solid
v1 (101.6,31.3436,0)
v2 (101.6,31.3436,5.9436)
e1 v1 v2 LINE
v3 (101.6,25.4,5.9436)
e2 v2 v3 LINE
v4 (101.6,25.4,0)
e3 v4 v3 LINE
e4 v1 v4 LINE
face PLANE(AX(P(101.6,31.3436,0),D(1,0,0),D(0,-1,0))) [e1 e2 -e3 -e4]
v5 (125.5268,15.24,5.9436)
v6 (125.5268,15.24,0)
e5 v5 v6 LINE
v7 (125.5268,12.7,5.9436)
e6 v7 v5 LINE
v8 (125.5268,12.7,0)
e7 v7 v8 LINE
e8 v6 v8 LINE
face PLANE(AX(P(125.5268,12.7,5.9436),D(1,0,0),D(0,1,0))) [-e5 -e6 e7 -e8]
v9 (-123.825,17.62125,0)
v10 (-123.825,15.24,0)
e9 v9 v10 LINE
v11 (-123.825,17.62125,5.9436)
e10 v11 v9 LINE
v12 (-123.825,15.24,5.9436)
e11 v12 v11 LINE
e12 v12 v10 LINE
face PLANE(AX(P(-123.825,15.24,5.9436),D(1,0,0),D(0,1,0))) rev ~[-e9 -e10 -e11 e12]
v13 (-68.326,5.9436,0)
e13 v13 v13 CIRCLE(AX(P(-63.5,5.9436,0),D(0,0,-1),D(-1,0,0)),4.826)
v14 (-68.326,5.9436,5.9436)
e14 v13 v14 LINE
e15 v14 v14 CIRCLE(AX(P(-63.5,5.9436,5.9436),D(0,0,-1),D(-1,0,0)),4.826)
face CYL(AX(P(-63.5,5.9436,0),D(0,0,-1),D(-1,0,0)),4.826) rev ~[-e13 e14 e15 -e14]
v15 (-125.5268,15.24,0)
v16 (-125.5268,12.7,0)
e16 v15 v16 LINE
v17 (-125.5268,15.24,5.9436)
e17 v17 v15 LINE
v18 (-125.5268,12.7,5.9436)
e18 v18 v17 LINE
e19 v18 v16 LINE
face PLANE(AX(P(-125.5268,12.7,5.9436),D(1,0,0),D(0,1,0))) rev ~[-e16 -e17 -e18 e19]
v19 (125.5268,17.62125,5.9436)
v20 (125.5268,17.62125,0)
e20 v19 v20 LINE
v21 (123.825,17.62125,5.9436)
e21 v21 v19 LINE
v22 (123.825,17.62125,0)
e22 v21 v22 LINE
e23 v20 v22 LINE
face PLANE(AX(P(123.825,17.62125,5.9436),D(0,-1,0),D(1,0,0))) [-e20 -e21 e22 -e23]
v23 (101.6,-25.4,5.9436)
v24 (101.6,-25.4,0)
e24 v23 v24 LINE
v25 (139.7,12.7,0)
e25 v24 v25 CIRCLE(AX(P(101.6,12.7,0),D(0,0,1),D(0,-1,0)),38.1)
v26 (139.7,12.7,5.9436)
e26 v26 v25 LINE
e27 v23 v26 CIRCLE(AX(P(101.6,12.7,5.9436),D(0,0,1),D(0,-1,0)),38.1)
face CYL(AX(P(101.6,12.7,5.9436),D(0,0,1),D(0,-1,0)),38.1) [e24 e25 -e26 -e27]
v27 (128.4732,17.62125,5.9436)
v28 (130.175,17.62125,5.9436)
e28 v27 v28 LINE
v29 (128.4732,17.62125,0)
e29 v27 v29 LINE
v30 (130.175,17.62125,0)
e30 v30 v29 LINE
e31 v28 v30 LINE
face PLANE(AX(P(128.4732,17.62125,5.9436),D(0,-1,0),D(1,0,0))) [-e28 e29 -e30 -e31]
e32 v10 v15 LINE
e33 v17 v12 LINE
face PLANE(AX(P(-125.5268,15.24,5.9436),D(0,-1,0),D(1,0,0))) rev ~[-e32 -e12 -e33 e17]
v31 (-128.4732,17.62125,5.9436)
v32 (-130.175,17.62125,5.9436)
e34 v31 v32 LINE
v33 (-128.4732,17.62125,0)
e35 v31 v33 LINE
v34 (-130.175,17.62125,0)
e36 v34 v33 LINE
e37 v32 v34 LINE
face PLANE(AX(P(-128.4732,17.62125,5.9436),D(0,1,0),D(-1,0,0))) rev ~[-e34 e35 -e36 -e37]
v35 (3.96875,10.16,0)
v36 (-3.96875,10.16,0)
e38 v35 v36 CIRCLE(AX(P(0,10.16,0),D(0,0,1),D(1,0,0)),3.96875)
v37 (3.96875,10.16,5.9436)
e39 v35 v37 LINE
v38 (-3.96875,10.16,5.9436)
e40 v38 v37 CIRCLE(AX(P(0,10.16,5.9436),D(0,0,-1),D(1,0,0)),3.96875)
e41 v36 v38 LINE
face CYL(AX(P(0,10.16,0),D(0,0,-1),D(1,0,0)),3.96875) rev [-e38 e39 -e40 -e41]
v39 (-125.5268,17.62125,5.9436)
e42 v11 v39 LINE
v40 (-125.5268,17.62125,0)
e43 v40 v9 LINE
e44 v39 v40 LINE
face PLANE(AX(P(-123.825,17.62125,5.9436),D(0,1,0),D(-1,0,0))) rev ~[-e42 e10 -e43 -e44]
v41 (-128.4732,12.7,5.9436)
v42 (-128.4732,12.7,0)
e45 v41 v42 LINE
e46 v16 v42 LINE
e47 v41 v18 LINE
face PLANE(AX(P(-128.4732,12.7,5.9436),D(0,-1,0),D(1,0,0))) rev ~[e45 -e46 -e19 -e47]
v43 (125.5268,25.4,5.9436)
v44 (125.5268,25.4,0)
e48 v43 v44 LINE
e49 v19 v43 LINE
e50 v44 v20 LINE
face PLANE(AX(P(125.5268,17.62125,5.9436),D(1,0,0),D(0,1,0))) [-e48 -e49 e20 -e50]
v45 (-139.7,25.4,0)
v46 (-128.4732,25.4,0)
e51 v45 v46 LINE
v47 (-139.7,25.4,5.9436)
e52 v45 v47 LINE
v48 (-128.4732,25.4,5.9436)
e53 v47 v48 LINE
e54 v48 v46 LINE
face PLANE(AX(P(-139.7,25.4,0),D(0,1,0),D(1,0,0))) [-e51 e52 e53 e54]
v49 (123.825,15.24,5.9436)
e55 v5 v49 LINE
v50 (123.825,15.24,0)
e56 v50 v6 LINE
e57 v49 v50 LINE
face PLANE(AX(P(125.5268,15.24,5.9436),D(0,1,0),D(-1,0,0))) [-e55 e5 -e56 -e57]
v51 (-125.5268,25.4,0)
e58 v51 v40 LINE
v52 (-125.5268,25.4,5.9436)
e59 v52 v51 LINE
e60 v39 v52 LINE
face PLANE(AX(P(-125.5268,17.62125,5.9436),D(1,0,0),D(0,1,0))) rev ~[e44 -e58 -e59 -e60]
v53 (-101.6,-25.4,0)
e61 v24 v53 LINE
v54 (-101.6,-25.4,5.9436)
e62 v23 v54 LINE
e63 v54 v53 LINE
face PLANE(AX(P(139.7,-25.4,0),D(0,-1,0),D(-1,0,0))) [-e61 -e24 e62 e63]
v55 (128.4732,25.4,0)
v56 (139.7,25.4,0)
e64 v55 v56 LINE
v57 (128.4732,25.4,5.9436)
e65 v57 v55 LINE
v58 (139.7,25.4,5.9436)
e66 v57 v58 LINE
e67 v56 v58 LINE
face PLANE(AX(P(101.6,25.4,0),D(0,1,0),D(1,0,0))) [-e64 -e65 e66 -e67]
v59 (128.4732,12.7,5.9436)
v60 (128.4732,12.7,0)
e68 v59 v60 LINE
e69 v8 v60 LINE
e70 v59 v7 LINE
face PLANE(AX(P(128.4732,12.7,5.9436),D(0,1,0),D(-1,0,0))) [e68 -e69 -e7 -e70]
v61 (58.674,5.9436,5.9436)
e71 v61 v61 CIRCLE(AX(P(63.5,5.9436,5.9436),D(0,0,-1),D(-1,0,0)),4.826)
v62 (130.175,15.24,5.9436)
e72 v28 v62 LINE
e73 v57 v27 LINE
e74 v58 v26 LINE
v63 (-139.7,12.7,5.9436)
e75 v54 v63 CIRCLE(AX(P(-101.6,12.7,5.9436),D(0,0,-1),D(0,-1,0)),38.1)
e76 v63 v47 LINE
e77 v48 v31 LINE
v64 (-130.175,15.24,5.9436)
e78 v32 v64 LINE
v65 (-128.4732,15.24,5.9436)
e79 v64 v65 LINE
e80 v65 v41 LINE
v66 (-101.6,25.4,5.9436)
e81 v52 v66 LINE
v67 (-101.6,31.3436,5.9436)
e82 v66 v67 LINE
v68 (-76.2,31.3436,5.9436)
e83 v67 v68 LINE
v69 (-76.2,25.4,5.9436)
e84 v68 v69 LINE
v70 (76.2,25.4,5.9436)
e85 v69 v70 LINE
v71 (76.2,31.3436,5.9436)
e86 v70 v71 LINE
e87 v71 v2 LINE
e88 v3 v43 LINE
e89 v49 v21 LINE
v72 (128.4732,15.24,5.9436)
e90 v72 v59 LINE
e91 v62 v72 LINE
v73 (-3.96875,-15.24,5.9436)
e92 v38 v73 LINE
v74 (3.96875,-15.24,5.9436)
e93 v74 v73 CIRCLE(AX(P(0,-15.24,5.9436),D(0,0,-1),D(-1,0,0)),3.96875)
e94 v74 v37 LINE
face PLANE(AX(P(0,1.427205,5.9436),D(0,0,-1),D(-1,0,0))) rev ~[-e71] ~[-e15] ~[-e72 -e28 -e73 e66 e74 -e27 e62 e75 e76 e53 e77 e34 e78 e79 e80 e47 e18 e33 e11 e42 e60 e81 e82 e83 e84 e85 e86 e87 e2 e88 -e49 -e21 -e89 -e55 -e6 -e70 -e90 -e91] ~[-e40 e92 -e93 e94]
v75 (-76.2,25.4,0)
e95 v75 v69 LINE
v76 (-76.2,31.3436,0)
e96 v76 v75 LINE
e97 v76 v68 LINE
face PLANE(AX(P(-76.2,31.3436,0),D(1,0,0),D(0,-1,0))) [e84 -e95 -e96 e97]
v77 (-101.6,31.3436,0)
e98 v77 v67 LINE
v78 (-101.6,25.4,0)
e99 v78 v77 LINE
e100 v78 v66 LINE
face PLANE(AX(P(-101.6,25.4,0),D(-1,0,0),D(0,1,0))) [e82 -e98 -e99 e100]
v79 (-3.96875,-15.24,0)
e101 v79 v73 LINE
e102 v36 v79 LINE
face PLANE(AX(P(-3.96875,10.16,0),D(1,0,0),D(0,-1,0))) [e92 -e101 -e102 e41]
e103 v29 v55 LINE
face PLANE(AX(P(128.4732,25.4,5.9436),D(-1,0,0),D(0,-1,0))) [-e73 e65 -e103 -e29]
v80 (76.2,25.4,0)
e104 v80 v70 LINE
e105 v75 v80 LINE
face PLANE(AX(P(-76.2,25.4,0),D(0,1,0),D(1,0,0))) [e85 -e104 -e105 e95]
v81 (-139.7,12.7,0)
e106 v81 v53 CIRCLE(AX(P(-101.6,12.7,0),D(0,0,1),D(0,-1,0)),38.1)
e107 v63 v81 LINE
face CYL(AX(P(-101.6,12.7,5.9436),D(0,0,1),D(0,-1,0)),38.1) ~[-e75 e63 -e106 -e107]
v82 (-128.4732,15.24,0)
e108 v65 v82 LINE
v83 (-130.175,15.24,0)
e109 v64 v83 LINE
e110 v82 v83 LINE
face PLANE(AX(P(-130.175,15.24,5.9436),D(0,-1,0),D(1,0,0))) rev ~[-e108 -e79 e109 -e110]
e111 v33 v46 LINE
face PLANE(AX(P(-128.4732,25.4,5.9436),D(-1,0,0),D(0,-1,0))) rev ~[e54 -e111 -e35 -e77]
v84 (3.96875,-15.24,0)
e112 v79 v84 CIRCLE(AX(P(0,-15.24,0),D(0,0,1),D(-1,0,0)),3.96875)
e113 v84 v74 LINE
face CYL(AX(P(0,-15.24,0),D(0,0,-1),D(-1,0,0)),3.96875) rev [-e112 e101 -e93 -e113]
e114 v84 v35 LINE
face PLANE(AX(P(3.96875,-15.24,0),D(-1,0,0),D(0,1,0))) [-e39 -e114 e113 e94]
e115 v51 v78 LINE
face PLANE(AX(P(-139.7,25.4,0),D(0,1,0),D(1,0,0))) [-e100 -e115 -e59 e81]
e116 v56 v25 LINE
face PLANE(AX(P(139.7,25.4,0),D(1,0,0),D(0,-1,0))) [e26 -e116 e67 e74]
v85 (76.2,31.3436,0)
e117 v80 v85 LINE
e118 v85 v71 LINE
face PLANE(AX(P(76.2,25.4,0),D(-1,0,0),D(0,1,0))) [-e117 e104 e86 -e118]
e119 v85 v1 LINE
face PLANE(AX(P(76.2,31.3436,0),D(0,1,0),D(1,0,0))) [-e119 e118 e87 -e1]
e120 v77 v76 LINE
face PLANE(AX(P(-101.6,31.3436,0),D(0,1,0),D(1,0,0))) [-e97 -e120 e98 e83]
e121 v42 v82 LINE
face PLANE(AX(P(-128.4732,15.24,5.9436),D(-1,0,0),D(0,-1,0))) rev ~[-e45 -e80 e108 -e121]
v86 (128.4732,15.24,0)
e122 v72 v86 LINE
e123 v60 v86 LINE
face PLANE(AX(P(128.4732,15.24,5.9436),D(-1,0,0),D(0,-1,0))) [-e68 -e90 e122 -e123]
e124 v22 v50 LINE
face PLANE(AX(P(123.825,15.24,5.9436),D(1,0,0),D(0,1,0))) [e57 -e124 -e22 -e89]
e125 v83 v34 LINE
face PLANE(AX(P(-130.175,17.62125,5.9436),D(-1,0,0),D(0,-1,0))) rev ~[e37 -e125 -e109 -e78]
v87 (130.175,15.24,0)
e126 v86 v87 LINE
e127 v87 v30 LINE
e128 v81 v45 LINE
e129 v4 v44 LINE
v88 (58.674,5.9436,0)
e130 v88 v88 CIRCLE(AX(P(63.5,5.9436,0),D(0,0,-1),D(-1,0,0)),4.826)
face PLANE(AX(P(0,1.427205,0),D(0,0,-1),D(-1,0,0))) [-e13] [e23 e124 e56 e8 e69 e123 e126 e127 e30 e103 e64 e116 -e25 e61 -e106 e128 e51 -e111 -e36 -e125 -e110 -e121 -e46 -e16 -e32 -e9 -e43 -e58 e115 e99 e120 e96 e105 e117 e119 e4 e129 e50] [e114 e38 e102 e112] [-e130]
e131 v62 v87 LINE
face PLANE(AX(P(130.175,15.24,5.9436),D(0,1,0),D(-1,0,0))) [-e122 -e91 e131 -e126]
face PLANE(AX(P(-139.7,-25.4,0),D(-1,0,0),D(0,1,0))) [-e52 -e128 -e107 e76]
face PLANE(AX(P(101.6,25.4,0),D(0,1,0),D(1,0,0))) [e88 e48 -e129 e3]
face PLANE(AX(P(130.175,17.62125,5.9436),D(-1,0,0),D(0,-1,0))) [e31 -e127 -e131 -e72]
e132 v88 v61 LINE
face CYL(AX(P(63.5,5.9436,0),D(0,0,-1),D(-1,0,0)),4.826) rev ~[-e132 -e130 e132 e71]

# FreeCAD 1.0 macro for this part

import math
import FreeCAD as App
import Part
import Sketcher
Q = App.Units.Quantity

doc = App.newDocument("Part")
body = doc.addObject("PartDesign::Body", "Body")

# Sketch on XY plane
sketch1 = body.newObject("Sketcher::SketchObject", "Sketch")
sketch1.AttachmentSupport = (doc.getObject("XY_Plane"), [""])
sketch1.MapMode = "FlatFace"
sketch1.addGeometry([
    Part.LineSegment(App.Vector(-101.6, 31.3436, 0), App.Vector(-101.6, 25.4, 0)),  # 0
    Part.LineSegment(App.Vector(-101.6, 25.4, 0), App.Vector(-139.7, 25.4, 0)),  # 1
    Part.LineSegment(App.Vector(-139.7, 25.4, 0), App.Vector(-139.7, -25.4, 0)),  # 2
    Part.LineSegment(App.Vector(-139.7, -25.4, 0), App.Vector(139.7, -25.4, 0)),  # 3
    Part.LineSegment(App.Vector(139.7, -25.4, 0), App.Vector(139.7, 25.4, 0)),  # 4
    Part.LineSegment(App.Vector(139.7, 25.4, 0), App.Vector(101.6, 25.4, 0)),  # 5
    Part.LineSegment(App.Vector(101.6, 25.4, 0), App.Vector(101.6, 31.3436, 0)),  # 6
    Part.LineSegment(App.Vector(101.6, 31.3436, 0), App.Vector(76.2, 31.3436, 0)),  # 7
    Part.LineSegment(App.Vector(76.2, 31.3436, 0), App.Vector(76.2, 25.4, 0)),  # 8
    Part.LineSegment(App.Vector(76.2, 25.4, 0), App.Vector(-76.2, 25.4, 0)),  # 9
    Part.LineSegment(App.Vector(-76.2, 25.4, 0), App.Vector(-76.2, 31.3436, 0)),  # 10
    Part.LineSegment(App.Vector(-76.2, 31.3436, 0), App.Vector(-101.6, 31.3436, 0)),  # 11
], False)
sketch1.addConstraint([
    Sketcher.Constraint("Coincident", 0, 2, 1, 1),
    Sketcher.Constraint("Coincident", 1, 2, 2, 1),
    Sketcher.Constraint("Coincident", 2, 2, 3, 1),
    Sketcher.Constraint("Coincident", 3, 2, 4, 1),
    Sketcher.Constraint("Coincident", 4, 2, 5, 1),
    Sketcher.Constraint("Coincident", 5, 2, 6, 1),
    Sketcher.Constraint("Coincident", 6, 2, 7, 1),
    Sketcher.Constraint("Coincident", 7, 2, 8, 1),
    Sketcher.Constraint("Coincident", 8, 2, 9, 1),
    Sketcher.Constraint("Coincident", 9, 2, 10, 1),
    Sketcher.Constraint("Coincident", 10, 2, 11, 1),
    Sketcher.Constraint("Coincident", 11, 2, 0, 1),
    Sketcher.Constraint("Vertical", 0),
    Sketcher.Constraint("Horizontal", 1),
    Sketcher.Constraint("Vertical", 2),
    Sketcher.Constraint("Horizontal", 3),
    Sketcher.Constraint("Vertical", 4),
    Sketcher.Constraint("Horizontal", 5),
    Sketcher.Constraint("Vertical", 6),
    Sketcher.Constraint("Horizontal", 7),
    Sketcher.Constraint("Vertical", 8),
    Sketcher.Constraint("Horizontal", 9),
    Sketcher.Constraint("Vertical", 10),
    Sketcher.Constraint("Horizontal", 11),
    Sketcher.Constraint("Symmetric", 1, 2, 3, 2, -1, 1),
    Sketcher.Constraint("Symmetric", 0, 2, 5, 2, -2),
    Sketcher.Constraint("Symmetric", 7, 2, 10, 2, -2),
    Sketcher.Constraint("Horizontal", 5, 2, 8, 2),
    Sketcher.Constraint("DistanceX", 3, 1, 3, 2, Q("11 in")),
    Sketcher.Constraint("DistanceX", 7, 2, 7, 1, Q("1 in")),
    Sketcher.Constraint("DistanceX", 9, 2, 9, 1, Q("6 in")),
    Sketcher.Constraint("DistanceY", 2, 2, 2, 1, Q("2 in")),
    Sketcher.Constraint("DistanceY", 0, 2, 0, 1, Q("0.234 in")),
])
pad1 = body.newObject("PartDesign::Pad", "Pad")
pad1.Profile = sketch1
pad1.Length = Q("0.234 in")

# Sketch on XY plane
sketch2 = body.newObject("Sketcher::SketchObject", "Sketch001")
sketch2.AttachmentSupport = (doc.getObject("XY_Plane"), [""])
sketch2.MapMode = "FlatFace"
sketch2.AttachmentOffset = App.Placement(App.Vector(0, 0, 0.234 * 25.4), App.Rotation())
sketch2.addGeometry([
    Part.LineSegment(App.Vector(-128.4732, 25.4, 0), App.Vector(-128.4732, 17.62125, 0)),  # 0
    Part.LineSegment(App.Vector(-128.4732, 17.62125, 0), App.Vector(-130.175, 17.62125, 0)),  # 1
    Part.LineSegment(App.Vector(-130.175, 17.62125, 0), App.Vector(-130.175, 15.24, 0)),  # 2
    Part.LineSegment(App.Vector(-130.175, 15.24, 0), App.Vector(-128.4732, 15.24, 0)),  # 3
    Part.LineSegment(App.Vector(-128.4732, 15.24, 0), App.Vector(-128.4732, 12.7, 0)),  # 4
    Part.LineSegment(App.Vector(-128.4732, 12.7, 0), App.Vector(-125.5268, 12.7, 0)),  # 5
    Part.LineSegment(App.Vector(-125.5268, 12.7, 0), App.Vector(-125.5268, 15.24, 0)),  # 6
    Part.LineSegment(App.Vector(-125.5268, 15.24, 0), App.Vector(-123.825, 15.24, 0)),  # 7
    Part.LineSegment(App.Vector(-123.825, 15.24, 0), App.Vector(-123.825, 17.62125, 0)),  # 8
    Part.LineSegment(App.Vector(-123.825, 17.62125, 0), App.Vector(-125.5268, 17.62125, 0)),  # 9
    Part.LineSegment(App.Vector(-125.5268, 17.62125, 0), App.Vector(-125.5268, 25.4, 0)),  # 10
    Part.LineSegment(App.Vector(-125.5268, 25.4, 0), App.Vector(-128.4732, 25.4, 0)),  # 11
    Part.LineSegment(App.Vector(125.5268, 25.4, 0), App.Vector(125.5268, 17.62125, 0)),  # 12
    Part.LineSegment(App.Vector(125.5268, 17.62125, 0), App.Vector(123.825, 17.62125, 0)),  # 13
    Part.LineSegment(App.Vector(123.825, 17.62125, 0), App.Vector(123.825, 15.24, 0)),  # 14
    Part.LineSegment(App.Vector(123.825, 15.24, 0), App.Vector(125.5268, 15.24, 0)),  # 15
    Part.LineSegment(App.Vector(125.5268, 15.24, 0), App.Vector(125.5268, 12.7, 0)),  # 16
    Part.LineSegment(App.Vector(125.5268, 12.7, 0), App.Vector(128.4732, 12.7, 0)),  # 17
    Part.LineSegment(App.Vector(128.4732, 12.7, 0), App.Vector(128.4732, 15.24, 0)),  # 18
    Part.LineSegment(App.Vector(128.4732, 15.24, 0), App.Vector(130.175, 15.24, 0)),  # 19
    Part.LineSegment(App.Vector(130.175, 15.24, 0), App.Vector(130.175, 17.62125, 0)),  # 20
    Part.LineSegment(App.Vector(130.175, 17.62125, 0), App.Vector(128.4732, 17.62125, 0)),  # 21
    Part.LineSegment(App.Vector(128.4732, 17.62125, 0), App.Vector(128.4732, 25.4, 0)),  # 22
    Part.LineSegment(App.Vector(128.4732, 25.4, 0), App.Vector(125.5268, 25.4, 0)),  # 23
], False)
sketch2.addConstraint([
    Sketcher.Constraint("Coincident", 0, 2, 1, 1),
    Sketcher.Constraint("Coincident", 1, 2, 2, 1),
    Sketcher.Constraint("Coincident", 2, 2, 3, 1),
    Sketcher.Constraint("Coincident", 3, 2, 4, 1),
    Sketcher.Constraint("Coincident", 4, 2, 5, 1),
    Sketcher.Constraint("Coincident", 5, 2, 6, 1),
    Sketcher.Constraint("Coincident", 6, 2, 7, 1),
    Sketcher.Constraint("Coincident", 7, 2, 8, 1),
    Sketcher.Constraint("Coincident", 8, 2, 9, 1),
    Sketcher.Constraint("Coincident", 9, 2, 10, 1),
    Sketcher.Constraint("Coincident", 10, 2, 11, 1),
    Sketcher.Constraint("Coincident", 11, 2, 0, 1),
    Sketcher.Constraint("Coincident", 12, 2, 13, 1),
    Sketcher.Constraint("Coincident", 13, 2, 14, 1),
    Sketcher.Constraint("Coincident", 14, 2, 15, 1),
    Sketcher.Constraint("Coincident", 15, 2, 16, 1),
    Sketcher.Constraint("Coincident", 16, 2, 17, 1),
    Sketcher.Constraint("Coincident", 17, 2, 18, 1),
    Sketcher.Constraint("Coincident", 18, 2, 19, 1),
    Sketcher.Constraint("Coincident", 19, 2, 20, 1),
    Sketcher.Constraint("Coincident", 20, 2, 21, 1),
    Sketcher.Constraint("Coincident", 21, 2, 22, 1),
    Sketcher.Constraint("Coincident", 22, 2, 23, 1),
    Sketcher.Constraint("Coincident", 23, 2, 12, 1),
    Sketcher.Constraint("Vertical", 0),
    Sketcher.Constraint("Horizontal", 1),
    Sketcher.Constraint("Vertical", 2),
    Sketcher.Constraint("Horizontal", 3),
    Sketcher.Constraint("Vertical", 4),
    Sketcher.Constraint("Horizontal", 5),
    Sketcher.Constraint("Vertical", 6),
    Sketcher.Constraint("Horizontal", 7),
    Sketcher.Constraint("Vertical", 8),
    Sketcher.Constraint("Horizontal", 9),
    Sketcher.Constraint("Vertical", 10),
    Sketcher.Constraint("Horizontal", 11),
    Sketcher.Constraint("Vertical", 12),
    Sketcher.Constraint("Horizontal", 13),
    Sketcher.Constraint("Vertical", 14),
    Sketcher.Constraint("Horizontal", 15),
    Sketcher.Constraint("Vertical", 16),
    Sketcher.Constraint("Horizontal", 17),
    Sketcher.Constraint("Vertical", 18),
    Sketcher.Constraint("Horizontal", 19),
    Sketcher.Constraint("Vertical", 20),
    Sketcher.Constraint("Horizontal", 21),
    Sketcher.Constraint("Vertical", 22),
    Sketcher.Constraint("Horizontal", 23),
    Sketcher.Constraint("Symmetric", 9, 2, 12, 2, -2),
    Sketcher.Constraint("Symmetric", 7, 2, 14, 2, -2),
    Sketcher.Constraint("Symmetric", 5, 2, 16, 2, -2),
    Sketcher.Constraint("Symmetric", 3, 2, 18, 2, -2),
    Sketcher.Constraint("Symmetric", 1, 2, 20, 2, -2),
    Sketcher.Constraint("Symmetric", 11, 2, 22, 2, -2),
    Sketcher.Constraint("Horizontal", 3, 2, 6, 2),
    Sketcher.Constraint("Horizontal", 1, 2, 8, 2),
    Sketcher.Constraint("Vertical", 0, 2, 3, 2),
    Sketcher.Constraint("Vertical", 6, 2, 9, 2),
    Sketcher.Constraint("Equal", 3, 7),
    Sketcher.Constraint("DistanceY", 4, 2, 4, 1, Q("0.1 in")),
    Sketcher.Constraint("DistanceY", -1, 1, 10, 2, Q("1 in")),
    Sketcher.Constraint("DistanceY", -1, 1, 2, 2, Q("0.6 in")),
    Sketcher.Constraint("DistanceX", 1, 2, 1, 1, Q("0.067 in")),
    Sketcher.Constraint("DistanceX", 5, 1, 5, 2, Q("0.116 in")),
    Sketcher.Constraint("DistanceY", 2, 2, 2, 1, Q("0.09375 in")),
    Sketcher.Constraint("DistanceX", 8, 2, 13, 2, Q("9.75 in")),
])
pocket1 = body.newObject("PartDesign::Pocket", "Pocket")
pocket1.Profile = sketch2
pocket1.Length = Q("0.25 in")

# Sketch on XY plane
sketch3 = body.newObject("Sketcher::SketchObject", "Sketch002")
sketch3.AttachmentSupport = (doc.getObject("XY_Plane"), [""])
sketch3.MapMode = "FlatFace"
sketch3.addGeometry([
    Part.Circle(App.Vector(63.5, 5.9436, 0), App.Vector(0, 0, 1), 4.826),  # 0
    Part.Circle(App.Vector(-63.5, 5.9436, 0), App.Vector(0, 0, 1), 4.826),  # 1
    Part.LineSegment(App.Vector(-3.96875, -15.24, 0), App.Vector(-3.96875, 10.16, 0)),  # 2
    Part.ArcOfCircle(Part.Circle(App.Vector(0, 10.16, 0), App.Vector(0, 0, 1), 3.96875), math.radians(0), math.radians(180)),  # 3
    Part.LineSegment(App.Vector(3.96875, 10.16, 0), App.Vector(3.96875, -15.24, 0)),  # 4
    Part.ArcOfCircle(Part.Circle(App.Vector(0, -15.24, 0), App.Vector(0, 0, 1), 3.96875), math.radians(180), math.radians(360)),  # 5
], False)
sketch3.addConstraint([
    Sketcher.Constraint("Tangent", 2, 2, 3, 2),
    Sketcher.Constraint("Tangent", 3, 1, 4, 1),
    Sketcher.Constraint("Tangent", 4, 2, 5, 2),
    Sketcher.Constraint("Tangent", 5, 1, 2, 1),
    Sketcher.Constraint("Vertical", 2),
    Sketcher.Constraint("Vertical", 4),
    Sketcher.Constraint("Equal", 0, 1),
    Sketcher.Constraint("Symmetric", 0, 3, 1, 3, -2),
    Sketcher.Constraint("PointOnObject", 3, 3, -2),
    Sketcher.Constraint("Diameter", 0, Q("0.38 in")),
    Sketcher.Constraint("DistanceY", 2, 1, 2, 2, Q("1 in")),
    Sketcher.Constraint("Radius", 3, Q("0.15625 in")),
    Sketcher.Constraint("DistanceX", 1, 3, 0, 3, Q("5 in")),
    Sketcher.Constraint("DistanceY", -1, 1, 3, 3, Q("0.4 in")),
    Sketcher.Constraint("DistanceY", -1, 1, 0, 3, Q("0.234 in")),
])
pocket2 = body.newObject("PartDesign::Pocket", "Pocket001")
pocket2.Profile = sketch3
pocket2.Type = "ThroughAll"
pocket2.Reversed = True

# Sketch on XY plane
sketch4 = body.newObject("Sketcher::SketchObject", "Sketch003")
sketch4.AttachmentSupport = (doc.getObject("XY_Plane"), [""])
sketch4.MapMode = "FlatFace"
sketch4.AttachmentOffset = App.Placement(App.Vector(0, 0, 0.234 * 25.4), App.Rotation())
sketch4.addGeometry([
    Part.LineSegment(App.Vector(-139.7, 12.7, 0), App.Vector(-139.7, -25.4, 0)),  # 0
    Part.LineSegment(App.Vector(-139.7, -25.4, 0), App.Vector(-101.6, -25.4, 0)),  # 1
    Part.ArcOfCircle(Part.Circle(App.Vector(-101.6, 12.7, 0), App.Vector(0, 0, 1), 38.1), math.radians(-180), math.radians(-90)),  # 2
    Part.LineSegment(App.Vector(101.6, -25.4, 0), App.Vector(139.7, -25.4, 0)),  # 3
    Part.LineSegment(App.Vector(139.7, -25.4, 0), App.Vector(139.7, 12.7, 0)),  # 4
    Part.ArcOfCircle(Part.Circle(App.Vector(101.6, 12.7, 0), App.Vector(0, 0, 1), 38.1), math.radians(-90), math.radians(0)),  # 5
], False)
sketch4.addConstraint([
    Sketcher.Constraint("Coincident", 0, 2, 1, 1),
    Sketcher.Constraint("Tangent", 1, 2, 2, 2),
    Sketcher.Constraint("Tangent", 2, 1, 0, 1),
    Sketcher.Constraint("Coincident", 3, 2, 4, 1),
    Sketcher.Constraint("Tangent", 4, 2, 5, 2),
    Sketcher.Constraint("Tangent", 5, 1, 3, 1),
    Sketcher.Constraint("Vertical", 0),
    Sketcher.Constraint("Horizontal", 1),
    Sketcher.Constraint("Horizontal", 3),
    Sketcher.Constraint("Vertical", 4),
    Sketcher.Constraint("Equal", 2, 5),
    Sketcher.Constraint("Symmetric", 2, 3, 5, 3, -2),
    Sketcher.Constraint("Radius", 2, Q("1.5 in")),
    Sketcher.Constraint("DistanceX", 2, 3, -1, 1, Q("4 in")),
    Sketcher.Constraint("DistanceY", 0, 2, -1, 1, Q("1 in")),
])
pocket3 = body.newObject("PartDesign::Pocket", "Pocket002")
pocket3.Profile = sketch4
pocket3.Type = "ThroughAll"

doc.recompute()
